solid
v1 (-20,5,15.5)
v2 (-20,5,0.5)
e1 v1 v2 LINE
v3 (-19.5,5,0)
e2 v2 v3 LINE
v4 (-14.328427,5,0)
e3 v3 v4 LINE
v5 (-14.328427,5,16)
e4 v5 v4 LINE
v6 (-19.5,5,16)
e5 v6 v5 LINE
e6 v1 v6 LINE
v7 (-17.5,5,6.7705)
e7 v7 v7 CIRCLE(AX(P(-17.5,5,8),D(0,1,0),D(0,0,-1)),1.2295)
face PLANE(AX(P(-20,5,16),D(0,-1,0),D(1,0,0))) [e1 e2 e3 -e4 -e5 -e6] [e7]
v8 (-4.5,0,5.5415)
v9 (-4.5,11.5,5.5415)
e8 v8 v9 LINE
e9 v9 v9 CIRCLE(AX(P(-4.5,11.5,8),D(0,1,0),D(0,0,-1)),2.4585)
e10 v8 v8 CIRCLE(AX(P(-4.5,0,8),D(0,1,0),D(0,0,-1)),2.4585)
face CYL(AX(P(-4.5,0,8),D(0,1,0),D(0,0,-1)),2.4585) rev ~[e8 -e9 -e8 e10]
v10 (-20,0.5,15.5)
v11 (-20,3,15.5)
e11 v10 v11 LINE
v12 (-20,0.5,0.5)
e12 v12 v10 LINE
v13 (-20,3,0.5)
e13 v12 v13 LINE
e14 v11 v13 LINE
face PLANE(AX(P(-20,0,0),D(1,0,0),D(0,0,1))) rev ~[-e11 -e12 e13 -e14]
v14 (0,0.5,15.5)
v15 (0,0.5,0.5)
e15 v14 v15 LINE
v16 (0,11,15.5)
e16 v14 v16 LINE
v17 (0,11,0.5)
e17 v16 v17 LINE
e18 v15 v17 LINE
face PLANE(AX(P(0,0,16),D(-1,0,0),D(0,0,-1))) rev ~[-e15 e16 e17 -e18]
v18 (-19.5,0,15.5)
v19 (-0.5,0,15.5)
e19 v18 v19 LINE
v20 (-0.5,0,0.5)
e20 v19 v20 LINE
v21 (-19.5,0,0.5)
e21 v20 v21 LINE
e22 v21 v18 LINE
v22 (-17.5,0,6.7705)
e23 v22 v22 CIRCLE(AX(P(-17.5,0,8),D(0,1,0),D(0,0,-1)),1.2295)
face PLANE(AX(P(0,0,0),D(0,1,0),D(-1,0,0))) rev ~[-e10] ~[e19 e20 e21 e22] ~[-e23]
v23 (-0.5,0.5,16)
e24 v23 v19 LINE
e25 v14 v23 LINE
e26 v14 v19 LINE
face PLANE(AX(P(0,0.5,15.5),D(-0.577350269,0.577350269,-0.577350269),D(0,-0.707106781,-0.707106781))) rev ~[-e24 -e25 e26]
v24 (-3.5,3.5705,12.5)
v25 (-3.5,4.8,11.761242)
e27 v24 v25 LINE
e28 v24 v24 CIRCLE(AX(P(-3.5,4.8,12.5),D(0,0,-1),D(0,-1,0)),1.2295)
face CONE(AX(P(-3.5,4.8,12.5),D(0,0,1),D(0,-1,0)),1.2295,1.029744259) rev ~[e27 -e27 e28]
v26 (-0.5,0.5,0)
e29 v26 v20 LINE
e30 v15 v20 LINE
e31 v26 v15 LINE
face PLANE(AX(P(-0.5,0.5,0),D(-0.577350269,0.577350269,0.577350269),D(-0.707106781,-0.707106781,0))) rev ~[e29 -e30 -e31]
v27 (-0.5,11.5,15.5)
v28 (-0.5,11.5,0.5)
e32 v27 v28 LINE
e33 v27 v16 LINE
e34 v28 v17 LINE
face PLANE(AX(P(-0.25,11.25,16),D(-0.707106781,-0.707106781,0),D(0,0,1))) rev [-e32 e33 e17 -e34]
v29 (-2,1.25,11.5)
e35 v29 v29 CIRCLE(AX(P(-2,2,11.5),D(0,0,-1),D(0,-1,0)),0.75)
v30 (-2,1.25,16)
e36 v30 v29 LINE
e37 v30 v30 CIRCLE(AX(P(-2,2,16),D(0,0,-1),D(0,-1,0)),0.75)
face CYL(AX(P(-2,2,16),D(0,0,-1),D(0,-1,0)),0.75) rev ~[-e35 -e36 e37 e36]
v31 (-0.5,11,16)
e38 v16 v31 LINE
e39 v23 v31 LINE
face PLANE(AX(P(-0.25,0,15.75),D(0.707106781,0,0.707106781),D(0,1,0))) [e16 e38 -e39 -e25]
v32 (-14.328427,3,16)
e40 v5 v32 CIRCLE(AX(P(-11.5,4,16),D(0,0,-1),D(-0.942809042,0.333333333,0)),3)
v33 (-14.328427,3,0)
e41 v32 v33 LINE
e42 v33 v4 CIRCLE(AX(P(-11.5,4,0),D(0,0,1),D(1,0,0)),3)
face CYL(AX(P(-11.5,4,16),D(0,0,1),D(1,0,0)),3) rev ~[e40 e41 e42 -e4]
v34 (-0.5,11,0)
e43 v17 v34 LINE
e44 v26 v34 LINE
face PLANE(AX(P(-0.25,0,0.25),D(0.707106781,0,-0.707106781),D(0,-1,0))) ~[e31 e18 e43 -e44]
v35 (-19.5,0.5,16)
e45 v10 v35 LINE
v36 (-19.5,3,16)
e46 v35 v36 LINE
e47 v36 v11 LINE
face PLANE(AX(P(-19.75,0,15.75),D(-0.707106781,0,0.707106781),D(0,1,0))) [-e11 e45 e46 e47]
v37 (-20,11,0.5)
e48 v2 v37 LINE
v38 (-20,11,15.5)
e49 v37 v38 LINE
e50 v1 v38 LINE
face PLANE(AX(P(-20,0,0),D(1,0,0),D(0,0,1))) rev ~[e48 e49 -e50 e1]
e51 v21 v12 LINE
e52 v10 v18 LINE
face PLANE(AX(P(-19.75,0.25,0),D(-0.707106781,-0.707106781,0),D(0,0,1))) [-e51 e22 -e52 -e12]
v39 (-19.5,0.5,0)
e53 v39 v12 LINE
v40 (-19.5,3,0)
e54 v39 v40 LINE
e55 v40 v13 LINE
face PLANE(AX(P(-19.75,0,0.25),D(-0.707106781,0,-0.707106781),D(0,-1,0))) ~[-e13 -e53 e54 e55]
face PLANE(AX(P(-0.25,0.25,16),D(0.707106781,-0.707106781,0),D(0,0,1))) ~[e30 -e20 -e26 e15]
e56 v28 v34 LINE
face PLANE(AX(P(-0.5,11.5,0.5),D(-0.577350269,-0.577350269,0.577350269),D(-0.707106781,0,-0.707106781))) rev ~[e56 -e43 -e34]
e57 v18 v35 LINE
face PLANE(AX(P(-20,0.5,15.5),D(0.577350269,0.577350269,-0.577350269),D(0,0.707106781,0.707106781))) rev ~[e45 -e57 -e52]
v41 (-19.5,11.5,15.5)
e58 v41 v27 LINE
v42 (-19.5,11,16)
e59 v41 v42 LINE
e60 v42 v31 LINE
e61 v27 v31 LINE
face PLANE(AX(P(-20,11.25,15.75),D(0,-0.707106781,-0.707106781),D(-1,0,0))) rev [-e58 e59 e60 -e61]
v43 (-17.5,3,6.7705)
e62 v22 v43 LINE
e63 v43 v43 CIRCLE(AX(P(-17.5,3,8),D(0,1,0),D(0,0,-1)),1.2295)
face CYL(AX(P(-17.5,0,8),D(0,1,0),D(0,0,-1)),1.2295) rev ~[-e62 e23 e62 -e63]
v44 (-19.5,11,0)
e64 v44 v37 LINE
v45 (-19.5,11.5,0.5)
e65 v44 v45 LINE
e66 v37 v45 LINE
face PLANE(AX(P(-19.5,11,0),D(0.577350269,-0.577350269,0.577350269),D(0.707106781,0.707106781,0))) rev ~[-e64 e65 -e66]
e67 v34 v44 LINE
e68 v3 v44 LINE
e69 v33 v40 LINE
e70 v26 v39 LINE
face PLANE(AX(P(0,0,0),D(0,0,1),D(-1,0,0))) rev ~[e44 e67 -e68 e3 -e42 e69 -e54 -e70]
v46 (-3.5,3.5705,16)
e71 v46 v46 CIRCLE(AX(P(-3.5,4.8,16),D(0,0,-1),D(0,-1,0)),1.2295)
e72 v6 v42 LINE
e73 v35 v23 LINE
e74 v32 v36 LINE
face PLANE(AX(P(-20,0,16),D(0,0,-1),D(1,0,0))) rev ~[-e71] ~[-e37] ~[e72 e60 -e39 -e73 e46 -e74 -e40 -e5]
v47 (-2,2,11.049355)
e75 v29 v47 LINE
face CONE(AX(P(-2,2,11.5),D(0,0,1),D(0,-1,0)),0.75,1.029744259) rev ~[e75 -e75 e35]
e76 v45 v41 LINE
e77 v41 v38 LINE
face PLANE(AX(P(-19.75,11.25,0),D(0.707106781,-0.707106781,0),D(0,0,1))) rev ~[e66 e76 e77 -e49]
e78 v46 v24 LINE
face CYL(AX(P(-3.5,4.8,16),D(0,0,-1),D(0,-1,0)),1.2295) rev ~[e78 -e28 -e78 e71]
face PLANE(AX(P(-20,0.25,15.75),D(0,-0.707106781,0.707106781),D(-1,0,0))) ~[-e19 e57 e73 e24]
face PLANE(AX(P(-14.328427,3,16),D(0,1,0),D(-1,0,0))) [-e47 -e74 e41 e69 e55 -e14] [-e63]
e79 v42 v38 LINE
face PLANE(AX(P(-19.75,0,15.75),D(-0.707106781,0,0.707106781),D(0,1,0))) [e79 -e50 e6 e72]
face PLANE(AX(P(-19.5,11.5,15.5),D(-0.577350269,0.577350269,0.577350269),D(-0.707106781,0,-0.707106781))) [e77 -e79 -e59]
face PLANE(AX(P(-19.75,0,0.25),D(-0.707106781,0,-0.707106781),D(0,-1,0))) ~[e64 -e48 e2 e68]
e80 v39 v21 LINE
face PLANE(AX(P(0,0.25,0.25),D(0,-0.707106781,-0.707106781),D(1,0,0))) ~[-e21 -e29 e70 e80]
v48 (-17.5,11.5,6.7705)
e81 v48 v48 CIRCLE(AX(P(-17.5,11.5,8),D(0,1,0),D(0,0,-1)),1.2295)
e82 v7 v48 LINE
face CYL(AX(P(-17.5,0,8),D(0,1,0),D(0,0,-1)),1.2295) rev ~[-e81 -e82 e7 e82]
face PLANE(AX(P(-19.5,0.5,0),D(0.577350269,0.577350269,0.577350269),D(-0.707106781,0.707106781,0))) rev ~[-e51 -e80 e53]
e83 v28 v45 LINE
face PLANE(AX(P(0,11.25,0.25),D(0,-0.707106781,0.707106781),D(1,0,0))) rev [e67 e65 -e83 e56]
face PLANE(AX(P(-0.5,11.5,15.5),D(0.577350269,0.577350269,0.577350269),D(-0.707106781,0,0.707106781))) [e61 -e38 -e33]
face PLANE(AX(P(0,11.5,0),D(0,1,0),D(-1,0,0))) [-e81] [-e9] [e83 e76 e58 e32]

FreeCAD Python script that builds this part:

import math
import FreeCAD as App
import Part
import Sketcher
Q = App.Units.Quantity


def edges_at(feature, points):
    """Names of the edges that pass closest to the given points."""
    edges = feature.Shape.Edges
    near = lambda p: min(range(len(edges)), key=lambda i: edges[i].distToShape(Part.Vertex(*p))[0])
    return sorted({f"Edge{near(p) + 1}" for p in points})

doc = App.newDocument("Part")
body = doc.addObject("PartDesign::Body", "Body")

sketch1 = doc.addObject("Sketcher::SketchObject", "Sketch")
body.addObject(sketch1)
sketch1.AttachmentSupport = (doc.XZ_Plane, [""])
sketch1.MapMode = "FlatFace"
sketch1.addGeometry([
    Part.LineSegment(App.Vector(0, 16, 0), App.Vector(0, 0, 0)),
    Part.LineSegment(App.Vector(0, 0, 0), App.Vector(-20, 0, 0)),
    Part.LineSegment(App.Vector(-20, 0, 0), App.Vector(-20, 16, 0)),
    Part.LineSegment(App.Vector(-20, 16, 0), App.Vector(0, 16, 0)),
], False)
sketch1.addConstraint([
    Sketcher.Constraint("Coincident", 0, 2, 1, 1),
    Sketcher.Constraint("Coincident", 1, 2, 2, 1),
    Sketcher.Constraint("Coincident", 2, 2, 3, 1),
    Sketcher.Constraint("Coincident", 3, 2, 0, 1),
    Sketcher.Constraint("Vertical", 0),
    Sketcher.Constraint("Horizontal", 1),
    Sketcher.Constraint("Vertical", 2),
    Sketcher.Constraint("Horizontal", 3),
    Sketcher.Constraint("Coincident", 0, 2, -1, 1),
    Sketcher.Constraint("DistanceX", 1, 2, 1, 1, Q("20 mm")),
    Sketcher.Constraint("DistanceY", 0, 2, 0, 1, Q("16 mm")),
])
pad1 = doc.addObject("PartDesign::Pad", "Pad")
body.addObject(pad1)
pad1.Profile = sketch1
pad1.Length = 11.5
pad1.Reversed = True

sketch2 = doc.addObject("Sketcher::SketchObject", "Sketch001")
body.addObject(sketch2)
sketch2.AttachmentSupport = (doc.XY_Plane, [""])
sketch2.MapMode = "FlatFace"
sketch2.AttachmentOffset = App.Placement(App.Vector(0, 0, 16), App.Rotation())
sketch2.addGeometry(Part.Circle(App.Vector(-3.5, 4.8, 0), App.Vector(0, 0, 1), 1.2), False)
sketch2.addConstraint([
    Sketcher.Constraint("Diameter", 0, Q("2.459 mm")),
    Sketcher.Constraint("DistanceX", 0, 3, -1, 1, Q("3.5 mm")),
    Sketcher.Constraint("DistanceY", -1, 1, 0, 3, Q("4.8 mm")),
])
doc.recompute()
hole = doc.addObject("PartDesign::Hole", "Hole")
body.addObject(hole)
hole.Profile = sketch2
hole.ThreadType = "None"
hole.Diameter = 2.459
hole.DepthType = "Dimension"
hole.Depth = 3.5
hole.DrillPoint = "Angled"
hole.DrillPointAngle = 118

sketch3 = doc.addObject("Sketcher::SketchObject", "Sketch002")
body.addObject(sketch3)
sketch3.AttachmentSupport = (doc.XY_Plane, [""])
sketch3.MapMode = "FlatFace"
sketch3.AttachmentOffset = App.Placement(App.Vector(0, 0, 16), App.Rotation())
sketch3.addGeometry(Part.Circle(App.Vector(-2, 2, 0), App.Vector(0, 0, 1), 0.8), False)
sketch3.addConstraint([
    Sketcher.Constraint("Diameter", 0, Q("1.5 mm")),
    Sketcher.Constraint("DistanceX", 0, 3, -1, 1, Q("2 mm")),
    Sketcher.Constraint("DistanceY", -1, 1, 0, 3, Q("2 mm")),
])
doc.recompute()
hole2 = doc.addObject("PartDesign::Hole", "Hole001")
body.addObject(hole2)
hole2.Profile = sketch3
hole2.ThreadType = "None"
hole2.Diameter = 1.5
hole2.DepthType = "Dimension"
hole2.Depth = 4.5
hole2.DrillPoint = "Angled"
hole2.DrillPointAngle = 118
doc.recompute()

chamfer = doc.addObject("PartDesign::Chamfer", "Chamfer")
body.addObject(chamfer)
chamfer.Base = (hole2, edges_at(hole2, [
    (-10, 0, 16),
    (0, 5.75, 16),
    (0, 0, 8),
    (-20, 0, 8),
    (-20, 5.75, 16),
    (0, 5.75, 0),
    (-10, 0, 0),
    (0, 11.5, 8),
    (-10, 11.5, 16),
    (-20, 11.5, 8),
    (-20, 5.75, 0),
    (-10, 11.5, 0),
]))
chamfer.Size = 0.5

sketch4 = doc.addObject("Sketcher::SketchObject", "Sketch003")
body.addObject(sketch4)
sketch4.AttachmentSupport = (doc.XY_Plane, [""])
sketch4.MapMode = "FlatFace"
sketch4.AttachmentOffset = App.Placement(App.Vector(0, 0, 16), App.Rotation())
sketch4.addGeometry([
    Part.ArcOfCircle(Part.Circle(App.Vector(-11.5, 4, 0), App.Vector(0, 0, 1), 3), math.radians(-161), math.radians(161)),
    Part.LineSegment(App.Vector(-14.3, 5, 0), App.Vector(-20, 5, 0)),
    Part.LineSegment(App.Vector(-20, 5, 0), App.Vector(-20, 3, 0)),
    Part.LineSegment(App.Vector(-20, 3, 0), App.Vector(-14.3, 3, 0)),
], False)
sketch4.addConstraint([
    Sketcher.Constraint("Coincident", 0, 2, 1, 1),
    Sketcher.Constraint("Coincident", 1, 2, 2, 1),
    Sketcher.Constraint("Coincident", 2, 2, 3, 1),
    Sketcher.Constraint("Coincident", 3, 2, 0, 1),
    Sketcher.Constraint("Horizontal", 1),
    Sketcher.Constraint("Vertical", 2),
    Sketcher.Constraint("Horizontal", 3),
    Sketcher.Constraint("Vertical", 0, 2, 3, 2),
    Sketcher.Constraint("Radius", 0, Q("3 mm")),
    Sketcher.Constraint("DistanceY", 2, 2, 2, 1, Q("2 mm")),
    Sketcher.Constraint("DistanceY", -1, 1, 0, 3, Q("4 mm")),
    Sketcher.Constraint("DistanceX", 0, 3, -1, 1, Q("11.5 mm")),
    Sketcher.Constraint("DistanceX", 1, 2, 0, 3, Q("8.5 mm")),
])
pocket1 = doc.addObject("PartDesign::Pocket", "Pocket")
body.addObject(pocket1)
pocket1.Profile = sketch4
pocket1.Type = "ThroughAll"

sketch5 = doc.addObject("Sketcher::SketchObject", "Sketch004")
body.addObject(sketch5)
sketch5.AttachmentSupport = (doc.XZ_Plane, [""])
sketch5.MapMode = "FlatFace"
sketch5.addGeometry(Part.Circle(App.Vector(-17.5, 8, 0), App.Vector(0, 0, 1), 1.2), False)
sketch5.addConstraint([
    Sketcher.Constraint("Diameter", 0, Q("2.459 mm")),
    Sketcher.Constraint("DistanceY", -1, 1, 0, 3, Q("8 mm")),
    Sketcher.Constraint("DistanceX", 0, 3, -1, 1, Q("17.5 mm")),
])
doc.recompute()
hole3 = doc.addObject("PartDesign::Hole", "Hole002")
body.addObject(hole3)
hole3.Profile = sketch5
hole3.ThreadType = "None"
hole3.Diameter = 2.459
hole3.DepthType = "ThroughAll"

sketch6 = doc.addObject("Sketcher::SketchObject", "Sketch005")
body.addObject(sketch6)
sketch6.AttachmentSupport = (doc.XZ_Plane, [""])
sketch6.MapMode = "FlatFace"
sketch6.addGeometry(Part.Circle(App.Vector(-4.5, 8, 0), App.Vector(0, 0, 1), 2.5), False)
sketch6.addConstraint([
    Sketcher.Constraint("Diameter", 0, Q("4.917 mm")),
    Sketcher.Constraint("DistanceY", -1, 1, 0, 3, Q("8 mm")),
    Sketcher.Constraint("DistanceX", 0, 3, -1, 1, Q("4.5 mm")),
])
doc.recompute()
hole4 = doc.addObject("PartDesign::Hole", "Hole003")
body.addObject(hole4)
hole4.Profile = sketch6
hole4.ThreadType = "None"
hole4.Diameter = 4.917
hole4.DepthType = "ThroughAll"

doc.recompute()
